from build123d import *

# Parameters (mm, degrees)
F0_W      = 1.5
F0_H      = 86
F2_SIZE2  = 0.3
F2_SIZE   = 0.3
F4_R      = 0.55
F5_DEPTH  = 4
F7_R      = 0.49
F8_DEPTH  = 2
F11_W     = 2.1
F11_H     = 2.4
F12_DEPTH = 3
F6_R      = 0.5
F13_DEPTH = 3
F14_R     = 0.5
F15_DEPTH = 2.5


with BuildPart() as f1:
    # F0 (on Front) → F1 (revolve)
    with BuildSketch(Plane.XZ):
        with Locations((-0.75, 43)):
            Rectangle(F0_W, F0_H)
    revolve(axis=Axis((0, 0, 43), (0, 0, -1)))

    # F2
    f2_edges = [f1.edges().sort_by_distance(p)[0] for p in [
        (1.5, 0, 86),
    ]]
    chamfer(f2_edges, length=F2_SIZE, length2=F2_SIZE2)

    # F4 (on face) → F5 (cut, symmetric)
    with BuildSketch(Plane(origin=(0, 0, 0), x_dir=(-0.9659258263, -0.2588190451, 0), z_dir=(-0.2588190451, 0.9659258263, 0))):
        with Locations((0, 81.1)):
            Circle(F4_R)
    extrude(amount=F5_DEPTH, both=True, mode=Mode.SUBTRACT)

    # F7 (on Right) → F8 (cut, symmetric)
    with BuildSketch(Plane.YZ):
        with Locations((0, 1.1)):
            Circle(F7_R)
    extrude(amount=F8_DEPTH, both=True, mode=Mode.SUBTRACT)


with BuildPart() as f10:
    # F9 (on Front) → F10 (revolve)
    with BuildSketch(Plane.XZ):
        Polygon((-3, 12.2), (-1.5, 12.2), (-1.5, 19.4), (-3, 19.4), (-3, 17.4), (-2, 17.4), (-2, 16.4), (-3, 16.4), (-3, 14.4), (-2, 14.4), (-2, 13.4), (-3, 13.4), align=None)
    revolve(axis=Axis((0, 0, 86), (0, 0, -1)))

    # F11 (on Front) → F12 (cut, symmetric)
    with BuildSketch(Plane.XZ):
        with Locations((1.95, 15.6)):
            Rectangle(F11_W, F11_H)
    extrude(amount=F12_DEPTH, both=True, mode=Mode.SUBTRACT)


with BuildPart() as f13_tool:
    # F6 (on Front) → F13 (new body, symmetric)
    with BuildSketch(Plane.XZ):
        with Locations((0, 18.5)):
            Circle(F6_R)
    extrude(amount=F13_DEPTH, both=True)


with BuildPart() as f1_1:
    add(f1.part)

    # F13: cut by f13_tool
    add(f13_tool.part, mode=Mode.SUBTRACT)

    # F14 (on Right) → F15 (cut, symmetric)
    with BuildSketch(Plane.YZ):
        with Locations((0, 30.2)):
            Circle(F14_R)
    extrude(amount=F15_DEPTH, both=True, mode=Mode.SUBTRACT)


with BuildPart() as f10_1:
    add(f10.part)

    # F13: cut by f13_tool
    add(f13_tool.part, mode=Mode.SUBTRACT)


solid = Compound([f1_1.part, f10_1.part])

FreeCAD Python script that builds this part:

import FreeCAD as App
import Part
import Sketcher
from FreeCAD import Vector


def edges_at(feature, points):
    """Names of the edges that pass closest to the given points."""
    edges = feature.Shape.Edges
    near = lambda p: min(range(len(edges)), key=lambda i: edges[i].distToShape(Part.Vertex(*p))[0])
    return sorted({f"Edge{near(p) + 1}" for p in points})


def add_polygon(sketch, points):
    """Adds a closed chain of lines whose ends are joined by coincident constraints."""
    first, n = sketch.GeometryCount, len(points)
    for a, b in zip(points, points[1:] + points[:1]):
        sketch.addGeometry(Part.LineSegment(App.Vector(*a, 0), App.Vector(*b, 0)), False)
    for i in range(n):
        sketch.addConstraint(Sketcher.Constraint("Coincident", first + i, 2, first + (i + 1) % n, 1))

doc = App.newDocument("Part")
body = doc.addObject("PartDesign::Body", "Body")

# Sketch on XZ plane
sketch1 = body.newObject("Sketcher::SketchObject", "Sketch")
sketch1.AttachmentSupport = (doc.getObject("XZ_Plane"), [""])
sketch1.MapMode = "FlatFace"
add_polygon(sketch1, [(-1.5, 86), (-1.5, 0), (0, 0), (0, 86)])  # lines 0-3
sketch1.addConstraint([
    Sketcher.Constraint("Vertical", 0),
    Sketcher.Constraint("Horizontal", 1),
    Sketcher.Constraint("Vertical", 2),
    Sketcher.Constraint("Horizontal", 3),
    Sketcher.Constraint("Coincident", 1, 2, -1, 1),
    Sketcher.Constraint("DistanceY", 0, 2, 0, 1, 86.0),
    Sketcher.Constraint("DistanceX", 1, 1, 1, 2, 1.5),
])
revolution = body.newObject("PartDesign::Revolution", "Revolution")
revolution.Profile = sketch1
revolution.ReferenceAxis = (sketch1, ["V_Axis"])
revolution.Angle = 360
doc.recompute()

chamfer = body.newObject("PartDesign::Chamfer", "Chamfer")
chamfer.Base = (revolution, edges_at(revolution, [(1.5, 0, 86)]))
chamfer.ChamferType = "Two distances"
chamfer.Size = 0.3
chamfer.Size2 = 0.3

# Sketch on an angled plane
sketch2 = body.newObject("Sketcher::SketchObject", "Sketch001")
sketch2.Placement = App.Placement(Vector(0, 0, 0), App.Rotation(Vector(-0.965925826, -0.258819045, 0), Vector(0, 0, 0.999999999), Vector(-0.258819045, 0.965925826, 0), "ZXY"))
sketch2.addGeometry(Part.Circle(Vector(0, 81.1, 0), Vector(0, 0, 1), 0.6), False)
sketch2.addConstraint([
    Sketcher.Constraint("PointOnObject", 0, 3, -2),
    Sketcher.Constraint("Diameter", 0, 1.1),
    Sketcher.Constraint("DistanceY", -1, 1, 0, 3, 81.1),
])
pocket1 = body.newObject("PartDesign::Pocket", "Pocket")
pocket1.Profile = sketch2
pocket1.Length = 8
pocket1.Midplane = True

# Sketch on YZ plane
sketch3 = body.newObject("Sketcher::SketchObject", "Sketch002")
sketch3.AttachmentSupport = (doc.getObject("YZ_Plane"), [""])
sketch3.MapMode = "FlatFace"
sketch3.addGeometry(Part.Circle(Vector(0, 1.1, 0), Vector(0, 0, 1), 0.49), False)
sketch3.addConstraint([
    Sketcher.Constraint("PointOnObject", 0, 3, -2),
    Sketcher.Constraint("Diameter", 0, 0.98),
    Sketcher.Constraint("DistanceY", -1, 1, 0, 3, 1.1),
])
pocket2 = body.newObject("PartDesign::Pocket", "Pocket001")
pocket2.Profile = sketch3
pocket2.Length = 4
pocket2.Midplane = True
body2 = doc.addObject("PartDesign::Body", "Body001")

# Sketch on XZ plane
sketch4 = body2.newObject("Sketcher::SketchObject", "Sketch003")
sketch4.AttachmentSupport = (doc.getObject("XZ_Plane001"), [""])
sketch4.MapMode = "FlatFace"
add_polygon(sketch4, [(-3, 12.2), (-1.5, 12.2), (-1.5, 19.4), (-3, 19.4), (-3, 17.4), (-2, 17.4), (-2, 16.4), (-3, 16.4), (-3, 14.4), (-2, 14.4), (-2, 13.4), (-3, 13.4)])  # lines 0-11
sketch4.addConstraint([
    Sketcher.Constraint("Horizontal", 0),
    Sketcher.Constraint("Vertical", 1),
    Sketcher.Constraint("Horizontal", 2),
    Sketcher.Constraint("Vertical", 3),
    Sketcher.Constraint("Horizontal", 4),
    Sketcher.Constraint("Vertical", 5),
    Sketcher.Constraint("Horizontal", 6),
    Sketcher.Constraint("Vertical", 7),
    Sketcher.Constraint("Horizontal", 8),
    Sketcher.Constraint("Vertical", 9),
    Sketcher.Constraint("Horizontal", 10),
    Sketcher.Constraint("Vertical", 11),
    Sketcher.Constraint("Vertical", 3, 2, 6, 2),
    Sketcher.Constraint("Vertical", 5, 2, 8, 2),
    Sketcher.Constraint("Vertical", 7, 2, 10, 2),
    Sketcher.Constraint("Equal", 10, 5),
    Sketcher.Constraint("Equal", 3, 7),
    Sketcher.Constraint("Equal", 5, 9),
    Sketcher.Constraint("DistanceX", 4, 1, 4, 2, 1.0),
    Sketcher.Constraint("DistanceY", 3, 2, 3, 1, 2.0),
    Sketcher.Constraint("DistanceX", 0, 1, 0, 2, 1.5),
    Sketcher.Constraint("DistanceY", 1, 1, 1, 2, 7.2),
    Sketcher.Constraint("DistanceX", 2, 2, -1, 1, 3.0),
    Sketcher.Constraint("DistanceY", -1, 1, 0, 2, 12.2),
])
revolution2 = body2.newObject("PartDesign::Revolution", "Revolution001")
revolution2.Profile = sketch4
revolution2.ReferenceAxis = (sketch4, ["V_Axis"])
revolution2.Angle = 360

# Sketch on XZ plane
sketch5 = body2.newObject("Sketcher::SketchObject", "Sketch004")
sketch5.AttachmentSupport = (doc.getObject("XZ_Plane001"), [""])
sketch5.MapMode = "FlatFace"
add_polygon(sketch5, [(0.9, 16.8), (0.9, 14.4), (3, 14.4), (3, 16.8)])  # lines 0-3
sketch5.addConstraint([
    Sketcher.Constraint("Vertical", 0),
    Sketcher.Constraint("Horizontal", 1),
    Sketcher.Constraint("Vertical", 2),
    Sketcher.Constraint("Horizontal", 3),
    Sketcher.Constraint("DistanceX", 1, 1, 1, 2, 2.1),
    Sketcher.Constraint("DistanceY", 0, 2, 0, 1, 2.4),
    Sketcher.Constraint("DistanceX", -1, 1, 1, 2, 3.0),
    Sketcher.Constraint("DistanceY", -1, 1, 0, 2, 14.4),
])
pocket3 = body2.newObject("PartDesign::Pocket", "Pocket002")
pocket3.Profile = sketch5
pocket3.Length = 6
pocket3.Midplane = True
body3 = doc.addObject("PartDesign::Body", "Body002")

# Sketch on XZ plane
sketch6 = body3.newObject("Sketcher::SketchObject", "Sketch005")
sketch6.AttachmentSupport = (doc.getObject("XZ_Plane002"), [""])
sketch6.MapMode = "FlatFace"
sketch6.addGeometry(Part.Circle(Vector(0, 18.5, 0), Vector(0, 0, 1), 0.5), False)
sketch6.addConstraint([
    Sketcher.Constraint("PointOnObject", 0, 3, -2),
    Sketcher.Constraint("Diameter", 0, 1.0),
    Sketcher.Constraint("DistanceY", -1, 1, 0, 3, 18.5),
])
pad1 = body3.newObject("PartDesign::Pad", "Pad")
pad1.Profile = sketch6
pad1.Length = 6
pad1.Midplane = True
doc.recompute()

body4 = doc.addObject("PartDesign::Body", "Body003")
body4.BaseFeature = body3
boolean = body.newObject("PartDesign::Boolean", "Boolean")
boolean.Type = "Cut"
boolean.addObjects([body4])
doc.recompute()

# Sketch on YZ plane
sketch7 = body.newObject("Sketcher::SketchObject", "Sketch006")
sketch7.AttachmentSupport = (doc.getObject("YZ_Plane"), [""])
sketch7.MapMode = "FlatFace"
sketch7.addGeometry(Part.Circle(Vector(0, 30.2, 0), Vector(0, 0, 1), 0.5), False)
sketch7.addConstraint([
    Sketcher.Constraint("PointOnObject", 0, 3, -2),
    Sketcher.Constraint("Diameter", 0, 1.0),
    Sketcher.Constraint("DistanceY", -1, 1, 0, 3, 30.2),
])
pocket4 = body.newObject("PartDesign::Pocket", "Pocket003")
pocket4.Profile = sketch7
pocket4.Length = 5
pocket4.Midplane = True
doc.recompute()

boolean2 = body2.newObject("PartDesign::Boolean", "Boolean001")
boolean2.Type = "Cut"
boolean2.addObjects([body3])

doc.recompute()
